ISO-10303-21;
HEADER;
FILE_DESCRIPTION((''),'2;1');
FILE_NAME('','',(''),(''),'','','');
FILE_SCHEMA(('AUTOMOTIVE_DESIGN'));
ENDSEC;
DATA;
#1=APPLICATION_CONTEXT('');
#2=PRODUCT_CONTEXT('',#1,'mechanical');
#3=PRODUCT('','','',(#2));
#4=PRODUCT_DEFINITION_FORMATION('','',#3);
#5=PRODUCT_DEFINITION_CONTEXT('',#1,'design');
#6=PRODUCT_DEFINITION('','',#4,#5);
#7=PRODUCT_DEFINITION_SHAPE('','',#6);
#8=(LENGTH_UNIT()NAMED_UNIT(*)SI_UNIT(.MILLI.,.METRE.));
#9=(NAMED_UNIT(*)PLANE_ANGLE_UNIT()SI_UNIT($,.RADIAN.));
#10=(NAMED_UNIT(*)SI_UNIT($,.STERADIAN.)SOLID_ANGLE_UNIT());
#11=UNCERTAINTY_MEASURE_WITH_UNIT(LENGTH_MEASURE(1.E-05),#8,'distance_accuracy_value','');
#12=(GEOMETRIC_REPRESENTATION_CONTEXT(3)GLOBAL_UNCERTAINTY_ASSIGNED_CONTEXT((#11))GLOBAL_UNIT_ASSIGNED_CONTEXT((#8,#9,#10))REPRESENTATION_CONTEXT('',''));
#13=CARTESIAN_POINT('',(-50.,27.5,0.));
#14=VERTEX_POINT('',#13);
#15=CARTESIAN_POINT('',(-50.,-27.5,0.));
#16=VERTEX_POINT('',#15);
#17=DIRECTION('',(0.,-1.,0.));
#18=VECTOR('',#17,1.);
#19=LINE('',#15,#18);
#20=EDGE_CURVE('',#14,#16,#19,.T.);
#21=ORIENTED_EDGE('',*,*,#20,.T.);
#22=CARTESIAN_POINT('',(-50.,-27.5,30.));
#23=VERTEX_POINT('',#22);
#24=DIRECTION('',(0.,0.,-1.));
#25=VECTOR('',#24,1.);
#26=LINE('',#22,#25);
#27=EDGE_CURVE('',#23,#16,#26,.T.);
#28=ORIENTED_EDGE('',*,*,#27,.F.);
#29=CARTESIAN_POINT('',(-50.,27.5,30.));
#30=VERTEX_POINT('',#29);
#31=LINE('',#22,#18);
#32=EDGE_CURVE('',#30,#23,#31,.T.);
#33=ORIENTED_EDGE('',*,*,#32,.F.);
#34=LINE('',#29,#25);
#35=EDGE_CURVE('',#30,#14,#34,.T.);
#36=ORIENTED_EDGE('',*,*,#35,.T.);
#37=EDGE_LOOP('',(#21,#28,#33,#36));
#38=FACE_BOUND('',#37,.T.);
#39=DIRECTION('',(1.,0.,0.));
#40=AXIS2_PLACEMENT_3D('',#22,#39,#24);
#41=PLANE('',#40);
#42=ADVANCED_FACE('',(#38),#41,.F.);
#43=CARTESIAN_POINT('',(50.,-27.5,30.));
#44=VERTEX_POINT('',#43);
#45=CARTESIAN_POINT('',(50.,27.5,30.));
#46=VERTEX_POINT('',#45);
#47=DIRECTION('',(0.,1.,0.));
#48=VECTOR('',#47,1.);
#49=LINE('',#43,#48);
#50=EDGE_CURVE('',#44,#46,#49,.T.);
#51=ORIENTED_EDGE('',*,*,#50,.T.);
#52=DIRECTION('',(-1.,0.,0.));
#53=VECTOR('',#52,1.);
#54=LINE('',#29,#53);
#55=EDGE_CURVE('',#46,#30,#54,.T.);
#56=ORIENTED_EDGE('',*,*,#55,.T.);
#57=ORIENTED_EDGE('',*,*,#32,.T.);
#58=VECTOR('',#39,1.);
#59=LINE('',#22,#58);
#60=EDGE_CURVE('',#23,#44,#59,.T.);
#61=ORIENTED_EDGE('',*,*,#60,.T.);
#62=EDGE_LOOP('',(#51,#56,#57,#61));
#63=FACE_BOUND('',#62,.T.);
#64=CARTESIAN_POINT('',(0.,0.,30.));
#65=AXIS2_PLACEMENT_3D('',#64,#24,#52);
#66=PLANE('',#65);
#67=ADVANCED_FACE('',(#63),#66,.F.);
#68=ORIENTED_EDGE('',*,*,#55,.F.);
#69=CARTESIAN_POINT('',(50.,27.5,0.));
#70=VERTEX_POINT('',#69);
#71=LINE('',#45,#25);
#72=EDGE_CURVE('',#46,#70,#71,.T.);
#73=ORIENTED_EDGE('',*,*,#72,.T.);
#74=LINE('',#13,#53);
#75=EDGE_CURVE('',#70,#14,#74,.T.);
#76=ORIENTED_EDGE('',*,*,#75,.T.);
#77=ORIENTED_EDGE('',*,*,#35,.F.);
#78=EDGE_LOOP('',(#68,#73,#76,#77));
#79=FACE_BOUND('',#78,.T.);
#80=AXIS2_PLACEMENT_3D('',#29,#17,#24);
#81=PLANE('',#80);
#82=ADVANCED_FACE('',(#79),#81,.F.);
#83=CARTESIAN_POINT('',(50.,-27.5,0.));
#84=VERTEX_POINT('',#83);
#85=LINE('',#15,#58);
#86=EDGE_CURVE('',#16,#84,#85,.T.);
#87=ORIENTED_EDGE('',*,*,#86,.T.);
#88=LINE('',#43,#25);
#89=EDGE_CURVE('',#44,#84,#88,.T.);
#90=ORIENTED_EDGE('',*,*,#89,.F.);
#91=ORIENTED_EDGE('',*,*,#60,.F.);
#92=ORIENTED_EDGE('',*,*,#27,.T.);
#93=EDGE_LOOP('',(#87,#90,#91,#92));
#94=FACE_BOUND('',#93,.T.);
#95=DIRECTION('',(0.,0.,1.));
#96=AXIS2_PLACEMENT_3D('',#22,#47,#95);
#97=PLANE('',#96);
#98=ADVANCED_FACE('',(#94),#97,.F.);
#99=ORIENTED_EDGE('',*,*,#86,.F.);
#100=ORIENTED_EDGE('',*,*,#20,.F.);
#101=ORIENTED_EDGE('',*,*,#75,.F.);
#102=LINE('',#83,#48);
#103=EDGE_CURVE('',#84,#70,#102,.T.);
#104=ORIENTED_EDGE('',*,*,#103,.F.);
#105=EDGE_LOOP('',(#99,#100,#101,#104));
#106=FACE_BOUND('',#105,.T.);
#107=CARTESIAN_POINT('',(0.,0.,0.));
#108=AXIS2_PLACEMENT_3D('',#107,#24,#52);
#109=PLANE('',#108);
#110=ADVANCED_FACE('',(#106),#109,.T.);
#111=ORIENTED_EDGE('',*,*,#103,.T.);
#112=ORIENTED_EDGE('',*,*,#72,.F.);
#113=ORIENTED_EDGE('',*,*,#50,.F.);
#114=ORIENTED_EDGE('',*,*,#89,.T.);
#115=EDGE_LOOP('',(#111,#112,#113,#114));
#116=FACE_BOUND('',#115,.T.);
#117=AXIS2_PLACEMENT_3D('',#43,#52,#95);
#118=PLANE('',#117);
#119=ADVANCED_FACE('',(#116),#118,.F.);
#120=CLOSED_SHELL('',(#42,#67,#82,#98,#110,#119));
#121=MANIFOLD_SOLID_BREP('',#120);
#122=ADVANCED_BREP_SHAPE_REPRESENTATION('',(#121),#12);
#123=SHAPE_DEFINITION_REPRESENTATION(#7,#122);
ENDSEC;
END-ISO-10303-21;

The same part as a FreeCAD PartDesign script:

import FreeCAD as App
import Part
import Sketcher
Q = App.Units.Quantity


def add_polygon(sketch, points):
    """Adds a closed chain of lines whose ends are joined by coincident constraints."""
    first, n = sketch.GeometryCount, len(points)
    for a, b in zip(points, points[1:] + points[:1]):
        sketch.addGeometry(Part.LineSegment(App.Vector(*a, 0), App.Vector(*b, 0)), False)
    for i in range(n):
        sketch.addConstraint(Sketcher.Constraint("Coincident", first + i, 2, first + (i + 1) % n, 1))

doc = App.newDocument("Part")
body = doc.addObject("PartDesign::Body", "Body")

# Sketch on XY plane
sketch1 = body.newObject("Sketcher::SketchObject", "Sketch")
sketch1.AttachmentSupport = (doc.getObject("XY_Plane"), [""])
sketch1.MapMode = "FlatFace"
add_polygon(sketch1, [(-50, 28), (-50, -28), (50, -28), (50, 28)])  # lines 0-3
sketch1.addConstraint([
    Sketcher.Constraint("Vertical", 0),
    Sketcher.Constraint("Horizontal", 1),
    Sketcher.Constraint("Vertical", 2),
    Sketcher.Constraint("Horizontal", 3),
    Sketcher.Constraint("Symmetric", 0, 2, 2, 2, -1, 1),
    Sketcher.Constraint("DistanceX", 1, 1, 1, 2, Q("100 mm")),
    Sketcher.Constraint("DistanceY", 0, 2, 0, 1, Q("55 mm")),
])
pad1 = body.newObject("PartDesign::Pad", "Pad")
pad1.Profile = sketch1
pad1.Length = 30

doc.recompute()
